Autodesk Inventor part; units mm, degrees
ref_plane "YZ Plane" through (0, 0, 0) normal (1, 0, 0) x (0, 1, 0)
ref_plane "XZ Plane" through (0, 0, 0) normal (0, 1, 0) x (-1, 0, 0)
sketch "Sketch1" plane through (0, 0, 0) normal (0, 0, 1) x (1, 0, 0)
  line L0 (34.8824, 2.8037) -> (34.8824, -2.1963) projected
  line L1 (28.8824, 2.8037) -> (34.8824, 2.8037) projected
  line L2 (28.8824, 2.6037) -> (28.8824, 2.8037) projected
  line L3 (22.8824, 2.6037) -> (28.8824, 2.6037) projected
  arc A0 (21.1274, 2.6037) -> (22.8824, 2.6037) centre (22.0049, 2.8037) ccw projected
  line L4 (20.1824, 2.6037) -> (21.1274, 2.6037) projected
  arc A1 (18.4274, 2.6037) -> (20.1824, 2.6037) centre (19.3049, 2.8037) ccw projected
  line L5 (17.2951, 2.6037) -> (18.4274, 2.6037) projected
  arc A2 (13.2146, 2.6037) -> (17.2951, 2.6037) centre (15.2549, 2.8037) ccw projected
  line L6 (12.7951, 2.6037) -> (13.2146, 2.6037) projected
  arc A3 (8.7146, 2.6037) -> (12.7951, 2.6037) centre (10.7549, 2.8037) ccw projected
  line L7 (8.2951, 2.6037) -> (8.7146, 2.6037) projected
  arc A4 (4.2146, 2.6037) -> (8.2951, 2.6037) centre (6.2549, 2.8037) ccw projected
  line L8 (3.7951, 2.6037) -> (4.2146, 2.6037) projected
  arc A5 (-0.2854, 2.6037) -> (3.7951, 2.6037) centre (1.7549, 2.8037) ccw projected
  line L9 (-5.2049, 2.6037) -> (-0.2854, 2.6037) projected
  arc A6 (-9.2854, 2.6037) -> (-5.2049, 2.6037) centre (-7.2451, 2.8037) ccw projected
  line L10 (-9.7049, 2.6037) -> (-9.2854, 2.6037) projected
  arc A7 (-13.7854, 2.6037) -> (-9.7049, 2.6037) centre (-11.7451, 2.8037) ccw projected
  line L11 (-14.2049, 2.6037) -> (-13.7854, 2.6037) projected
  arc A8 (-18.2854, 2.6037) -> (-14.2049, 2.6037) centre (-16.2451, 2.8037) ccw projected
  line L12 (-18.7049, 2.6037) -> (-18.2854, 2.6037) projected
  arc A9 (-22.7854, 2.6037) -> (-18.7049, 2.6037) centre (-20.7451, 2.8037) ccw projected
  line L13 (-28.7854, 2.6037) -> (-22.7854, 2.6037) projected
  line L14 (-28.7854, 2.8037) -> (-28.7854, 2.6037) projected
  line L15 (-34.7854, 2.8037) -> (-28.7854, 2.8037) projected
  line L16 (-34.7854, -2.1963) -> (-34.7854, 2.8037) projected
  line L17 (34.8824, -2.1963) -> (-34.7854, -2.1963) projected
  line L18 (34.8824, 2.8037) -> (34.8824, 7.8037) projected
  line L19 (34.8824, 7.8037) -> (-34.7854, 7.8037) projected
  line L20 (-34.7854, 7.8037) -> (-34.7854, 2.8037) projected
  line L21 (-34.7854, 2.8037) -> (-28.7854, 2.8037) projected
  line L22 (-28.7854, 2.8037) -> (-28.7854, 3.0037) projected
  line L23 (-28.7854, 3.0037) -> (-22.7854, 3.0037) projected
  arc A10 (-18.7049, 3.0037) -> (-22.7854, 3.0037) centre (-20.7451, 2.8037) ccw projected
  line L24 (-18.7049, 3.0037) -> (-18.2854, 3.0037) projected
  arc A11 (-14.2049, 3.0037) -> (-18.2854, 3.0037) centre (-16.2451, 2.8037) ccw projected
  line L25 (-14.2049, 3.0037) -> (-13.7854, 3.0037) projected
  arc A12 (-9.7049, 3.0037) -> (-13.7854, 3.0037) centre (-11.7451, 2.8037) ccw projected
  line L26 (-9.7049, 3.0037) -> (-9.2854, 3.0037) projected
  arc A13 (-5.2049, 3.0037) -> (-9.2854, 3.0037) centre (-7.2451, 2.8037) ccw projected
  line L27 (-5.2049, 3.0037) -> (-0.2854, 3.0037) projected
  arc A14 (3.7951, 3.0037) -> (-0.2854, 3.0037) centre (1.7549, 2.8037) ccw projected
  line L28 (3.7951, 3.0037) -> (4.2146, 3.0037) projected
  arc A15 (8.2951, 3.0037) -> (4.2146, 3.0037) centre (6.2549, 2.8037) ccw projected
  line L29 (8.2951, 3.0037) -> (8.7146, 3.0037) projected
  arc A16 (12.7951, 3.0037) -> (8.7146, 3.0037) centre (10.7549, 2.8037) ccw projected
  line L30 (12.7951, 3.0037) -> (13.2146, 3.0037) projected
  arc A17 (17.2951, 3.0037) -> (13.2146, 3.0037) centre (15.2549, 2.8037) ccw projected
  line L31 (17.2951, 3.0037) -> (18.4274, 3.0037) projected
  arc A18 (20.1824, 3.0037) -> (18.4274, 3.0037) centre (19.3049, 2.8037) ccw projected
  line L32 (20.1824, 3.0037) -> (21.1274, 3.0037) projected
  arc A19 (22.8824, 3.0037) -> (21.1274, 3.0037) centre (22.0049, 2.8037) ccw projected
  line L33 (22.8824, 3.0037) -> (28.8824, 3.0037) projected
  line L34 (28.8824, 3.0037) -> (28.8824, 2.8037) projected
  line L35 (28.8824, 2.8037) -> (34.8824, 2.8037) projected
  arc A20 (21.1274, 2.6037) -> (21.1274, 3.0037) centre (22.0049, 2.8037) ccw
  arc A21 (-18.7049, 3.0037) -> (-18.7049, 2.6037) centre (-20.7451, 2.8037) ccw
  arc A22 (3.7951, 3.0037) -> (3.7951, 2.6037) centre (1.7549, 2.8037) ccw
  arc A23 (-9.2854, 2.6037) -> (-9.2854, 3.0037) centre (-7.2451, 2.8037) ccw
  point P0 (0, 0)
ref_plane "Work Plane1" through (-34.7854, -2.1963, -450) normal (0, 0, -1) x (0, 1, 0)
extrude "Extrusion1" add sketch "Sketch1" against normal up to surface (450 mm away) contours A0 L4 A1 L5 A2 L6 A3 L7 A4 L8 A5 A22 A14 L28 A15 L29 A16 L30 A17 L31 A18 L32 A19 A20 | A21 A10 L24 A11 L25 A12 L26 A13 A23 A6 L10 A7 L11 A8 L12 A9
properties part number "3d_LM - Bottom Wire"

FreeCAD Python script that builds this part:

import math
import FreeCAD as App
import Part
import Sketcher

V = App.Vector

doc = App.newDocument("Part")
body = doc.addObject("PartDesign::Body", "Body")
body.AllowCompound = True

sketch1 = body.newObject("Sketcher::SketchObject", "Sketch")
sketch1.AttachmentSupport = (doc.getObject("XY_Plane"), [""])
sketch1.MapMode = "FlatFace"
sketch1.addGeometry([
    Part.ArcOfCircle(Part.Circle(V(22, 2.8, 0), V(0, 0, 1), 0.9), math.radians(-167), math.radians(167)),
    Part.LineSegment(V(21.13, 3, 0), V(20.18, 3, 0)),
    Part.ArcOfCircle(Part.Circle(V(19.3, 2.8, 0), V(0, 0, 1), 0.9), math.radians(13), math.radians(167)),
    Part.LineSegment(V(18.43, 3, 0), V(17.3, 3, 0)),
    Part.ArcOfCircle(Part.Circle(V(15.25, 2.8, 0), V(0, 0, 1), 2.05), math.radians(6), math.radians(174)),
    Part.LineSegment(V(13.21, 3, 0), V(12.8, 3, 0)),
    Part.ArcOfCircle(Part.Circle(V(10.75, 2.8, 0), V(0, 0, 1), 2.05), math.radians(6), math.radians(174)),
    Part.LineSegment(V(8.71, 3, 0), V(8.3, 3, 0)),
    Part.ArcOfCircle(Part.Circle(V(6.25, 2.8, 0), V(0, 0, 1), 2.05), math.radians(6), math.radians(174)),
    Part.LineSegment(V(4.21, 3, 0), V(3.8, 3, 0)),
    Part.ArcOfCircle(Part.Circle(V(1.75, 2.8, 0), V(0, 0, 1), 2.05), math.radians(6), math.radians(174)),
    Part.ArcOfCircle(Part.Circle(V(1.75, 2.8, 0), V(0, 0, 1), 2.05), math.radians(174.4), math.radians(185.6)),
    Part.ArcOfCircle(Part.Circle(V(1.75, 2.8, 0), V(0, 0, 1), 2.05), math.radians(-174), math.radians(-6)),
    Part.LineSegment(V(3.8, 2.6, 0), V(4.21, 2.6, 0)),
    Part.ArcOfCircle(Part.Circle(V(6.25, 2.8, 0), V(0, 0, 1), 2.05), math.radians(-174), math.radians(-6)),
    Part.LineSegment(V(8.3, 2.6, 0), V(8.71, 2.6, 0)),
    Part.ArcOfCircle(Part.Circle(V(10.75, 2.8, 0), V(0, 0, 1), 2.05), math.radians(-174), math.radians(-6)),
    Part.LineSegment(V(12.8, 2.6, 0), V(13.21, 2.6, 0)),
    Part.ArcOfCircle(Part.Circle(V(15.25, 2.8, 0), V(0, 0, 1), 2.05), math.radians(-174), math.radians(-6)),
    Part.LineSegment(V(17.3, 2.6, 0), V(18.43, 2.6, 0)),
    Part.ArcOfCircle(Part.Circle(V(19.3, 2.8, 0), V(0, 0, 1), 0.9), math.radians(-167), math.radians(-13)),
    Part.LineSegment(V(20.18, 2.6, 0), V(21.13, 2.6, 0)),
    Part.ArcOfCircle(Part.Circle(V(-20.75, 2.8, 0), V(0, 0, 1), 2.05), math.radians(174.4), math.radians(185.6)),
    Part.ArcOfCircle(Part.Circle(V(-20.75, 2.8, 0), V(0, 0, 1), 2.05), math.radians(-174), math.radians(-6)),
    Part.LineSegment(V(-18.7, 2.6, 0), V(-18.29, 2.6, 0)),
    Part.ArcOfCircle(Part.Circle(V(-16.25, 2.8, 0), V(0, 0, 1), 2.05), math.radians(-174), math.radians(-6)),
    Part.LineSegment(V(-14.2, 2.6, 0), V(-13.79, 2.6, 0)),
    Part.ArcOfCircle(Part.Circle(V(-11.75, 2.8, 0), V(0, 0, 1), 2.05), math.radians(-174), math.radians(-6)),
    Part.LineSegment(V(-9.7, 2.6, 0), V(-9.29, 2.6, 0)),
    Part.ArcOfCircle(Part.Circle(V(-7.25, 2.8, 0), V(0, 0, 1), 2.05), math.radians(-174), math.radians(-6)),
    Part.ArcOfCircle(Part.Circle(V(-7.25, 2.8, 0), V(0, 0, 1), 2.05), math.radians(-5.6), math.radians(5.6)),
    Part.ArcOfCircle(Part.Circle(V(-7.25, 2.8, 0), V(0, 0, 1), 2.05), math.radians(6), math.radians(174)),
    Part.LineSegment(V(-9.29, 3, 0), V(-9.7, 3, 0)),
    Part.ArcOfCircle(Part.Circle(V(-11.75, 2.8, 0), V(0, 0, 1), 2.05), math.radians(6), math.radians(174)),
    Part.LineSegment(V(-13.79, 3, 0), V(-14.2, 3, 0)),
    Part.ArcOfCircle(Part.Circle(V(-16.25, 2.8, 0), V(0, 0, 1), 2.05), math.radians(6), math.radians(174)),
    Part.LineSegment(V(-18.29, 3, 0), V(-18.7, 3, 0)),
    Part.ArcOfCircle(Part.Circle(V(-20.75, 2.8, 0), V(0, 0, 1), 2.05), math.radians(6), math.radians(174)),
], False)
sketch1.addConstraint([
    Sketcher.Constraint("Coincident", 0, 2, 1, 1),
    Sketcher.Constraint("Coincident", 1, 2, 2, 1),
    Sketcher.Constraint("Coincident", 2, 2, 3, 1),
    Sketcher.Constraint("Coincident", 3, 2, 4, 1),
    Sketcher.Constraint("Coincident", 4, 2, 5, 1),
    Sketcher.Constraint("Coincident", 5, 2, 6, 1),
    Sketcher.Constraint("Coincident", 6, 2, 7, 1),
    Sketcher.Constraint("Coincident", 7, 2, 8, 1),
    Sketcher.Constraint("Coincident", 8, 2, 9, 1),
    Sketcher.Constraint("Coincident", 9, 2, 10, 1),
    Sketcher.Constraint("Tangent", 10, 2, 11, 1),
    Sketcher.Constraint("Tangent", 11, 2, 12, 1),
    Sketcher.Constraint("Coincident", 12, 2, 13, 1),
    Sketcher.Constraint("Coincident", 13, 2, 14, 1),
    Sketcher.Constraint("Coincident", 14, 2, 15, 1),
    Sketcher.Constraint("Coincident", 15, 2, 16, 1),
    Sketcher.Constraint("Coincident", 16, 2, 17, 1),
    Sketcher.Constraint("Coincident", 17, 2, 18, 1),
    Sketcher.Constraint("Coincident", 18, 2, 19, 1),
    Sketcher.Constraint("Coincident", 19, 2, 20, 1),
    Sketcher.Constraint("Coincident", 20, 2, 21, 1),
    Sketcher.Constraint("Coincident", 21, 2, 0, 1),
    Sketcher.Constraint("Tangent", 22, 2, 23, 1),
    Sketcher.Constraint("Coincident", 23, 2, 24, 1),
    Sketcher.Constraint("Coincident", 24, 2, 25, 1),
    Sketcher.Constraint("Coincident", 25, 2, 26, 1),
    Sketcher.Constraint("Coincident", 26, 2, 27, 1),
    Sketcher.Constraint("Coincident", 27, 2, 28, 1),
    Sketcher.Constraint("Coincident", 28, 2, 29, 1),
    Sketcher.Constraint("Tangent", 29, 2, 30, 1),
    Sketcher.Constraint("Tangent", 30, 2, 31, 1),
    Sketcher.Constraint("Coincident", 31, 2, 32, 1),
    Sketcher.Constraint("Coincident", 32, 2, 33, 1),
    Sketcher.Constraint("Coincident", 33, 2, 34, 1),
    Sketcher.Constraint("Coincident", 34, 2, 35, 1),
    Sketcher.Constraint("Coincident", 35, 2, 36, 1),
    Sketcher.Constraint("Coincident", 36, 2, 37, 1),
    Sketcher.Constraint("Tangent", 37, 2, 22, 1),
    Sketcher.Constraint("Horizontal", 1),
    Sketcher.Constraint("Horizontal", 3),
    Sketcher.Constraint("Horizontal", 5),
    Sketcher.Constraint("Horizontal", 7),
    Sketcher.Constraint("Horizontal", 9),
    Sketcher.Constraint("Horizontal", 13),
    Sketcher.Constraint("Horizontal", 15),
    Sketcher.Constraint("Horizontal", 17),
    Sketcher.Constraint("Horizontal", 19),
    Sketcher.Constraint("Horizontal", 21),
    Sketcher.Constraint("Horizontal", 24),
    Sketcher.Constraint("Horizontal", 26),
    Sketcher.Constraint("Horizontal", 28),
    Sketcher.Constraint("Horizontal", 32),
    Sketcher.Constraint("Horizontal", 34),
    Sketcher.Constraint("Horizontal", 36),
    Sketcher.Constraint("Coincident", 12, 3, 10, 3),
    Sketcher.Constraint("Coincident", 14, 3, 8, 3),
    Sketcher.Constraint("Coincident", 16, 3, 6, 3),
    Sketcher.Constraint("Coincident", 18, 3, 4, 3),
    Sketcher.Constraint("Coincident", 20, 3, 2, 3),
    Sketcher.Constraint("Coincident", 31, 3, 29, 3),
    Sketcher.Constraint("Coincident", 33, 3, 27, 3),
    Sketcher.Constraint("Coincident", 35, 3, 25, 3),
    Sketcher.Constraint("Equal", 0, 2),
    Sketcher.Constraint("Equal", 4, 6),
    Sketcher.Constraint("Equal", 6, 8),
    Sketcher.Constraint("Equal", 8, 10),
    Sketcher.Constraint("Equal", 12, 14),
    Sketcher.Constraint("Equal", 14, 16),
    Sketcher.Constraint("Equal", 16, 18),
    Sketcher.Constraint("Equal", 2, 20),
    Sketcher.Constraint("Equal", 18, 22),
    Sketcher.Constraint("Equal", 22, 23),
    Sketcher.Constraint("Equal", 23, 25),
    Sketcher.Constraint("Equal", 25, 27),
    Sketcher.Constraint("Equal", 27, 29),
    Sketcher.Constraint("Equal", 31, 33),
    Sketcher.Constraint("Equal", 33, 35),
    Sketcher.Constraint("Equal", 35, 37),
    Sketcher.Constraint("Horizontal", 0, 3, 2, 3),
    Sketcher.Constraint("Horizontal", 2, 3, 4, 3),
    Sketcher.Constraint("Horizontal", 4, 3, 6, 3),
    Sketcher.Constraint("Horizontal", 6, 3, 8, 3),
    Sketcher.Constraint("Horizontal", 8, 3, 10, 3),
    Sketcher.Constraint("Horizontal", 20, 3, 22, 3),
    Sketcher.Constraint("Horizontal", 23, 3, 25, 3),
    Sketcher.Constraint("Horizontal", 25, 3, 27, 3),
    Sketcher.Constraint("Horizontal", 27, 3, 29, 3),
    Sketcher.Constraint("Horizontal", 1, 2, 2, 2),
    Sketcher.Constraint("Horizontal", 3, 2, 4, 2),
    Sketcher.Constraint("Horizontal", 5, 2, 6, 2),
    Sketcher.Constraint("Horizontal", 7, 2, 8, 2),
    Sketcher.Constraint("Horizontal", 9, 2, 10, 2),
    Sketcher.Constraint("Horizontal", 11, 2, 12, 2),
    Sketcher.Constraint("Horizontal", 13, 2, 14, 2),
    Sketcher.Constraint("Horizontal", 15, 2, 16, 2),
    Sketcher.Constraint("Horizontal", 17, 2, 18, 2),
    Sketcher.Constraint("Horizontal", 19, 2, 20, 2),
    Sketcher.Constraint("Horizontal", 21, 2, 22, 2),
    Sketcher.Constraint("Horizontal", 22, 2, 23, 2),
    Sketcher.Constraint("Horizontal", 24, 2, 25, 2),
    Sketcher.Constraint("Horizontal", 26, 2, 27, 2),
    Sketcher.Constraint("Horizontal", 28, 2, 29, 2),
    Sketcher.Constraint("Horizontal", 10, 2, 30, 2),
    Sketcher.Constraint("Horizontal", 30, 2, 31, 2),
    Sketcher.Constraint("Horizontal", 32, 2, 33, 2),
    Sketcher.Constraint("Horizontal", 34, 2, 35, 2),
    Sketcher.Constraint("Horizontal", 36, 2, 37, 2),
    Sketcher.Constraint("Vertical", 10, 2, 11, 2),
    Sketcher.Constraint("Equal", 5, 7),
    Sketcher.Constraint("Equal", 7, 9),
    Sketcher.Constraint("Equal", 17, 24),
    Sketcher.Constraint("Equal", 24, 26),
    Sketcher.Constraint("Equal", 26, 28),
    Sketcher.Constraint("Radius", 0, 0.9),
    Sketcher.Constraint("Radius", 4, 2.05),
    Sketcher.Constraint("DistanceX", 8, 3, 4, 3, 9.0),
    Sketcher.Constraint("DistanceX", 22, 3, 8, 3, 27.0),
    Sketcher.Constraint("DistanceX", 2, 3, 0, 3, 2.7),
    Sketcher.Constraint("DistanceY", 0, 3, 0, 2, 0.2),
    Sketcher.Constraint("DistanceX", 4, 3, 2, 3, 4.05),
    Sketcher.Constraint("DistanceX", -1, 1, 0, 3, 22.005),
    Sketcher.Constraint("DistanceY", -1, 1, 0, 3, 2.8037),
])
pad1 = body.newObject("PartDesign::Pad", "Pad")
pad1.Profile = sketch1
pad1.Length = 450
pad1.Reversed = True

doc.recompute()
